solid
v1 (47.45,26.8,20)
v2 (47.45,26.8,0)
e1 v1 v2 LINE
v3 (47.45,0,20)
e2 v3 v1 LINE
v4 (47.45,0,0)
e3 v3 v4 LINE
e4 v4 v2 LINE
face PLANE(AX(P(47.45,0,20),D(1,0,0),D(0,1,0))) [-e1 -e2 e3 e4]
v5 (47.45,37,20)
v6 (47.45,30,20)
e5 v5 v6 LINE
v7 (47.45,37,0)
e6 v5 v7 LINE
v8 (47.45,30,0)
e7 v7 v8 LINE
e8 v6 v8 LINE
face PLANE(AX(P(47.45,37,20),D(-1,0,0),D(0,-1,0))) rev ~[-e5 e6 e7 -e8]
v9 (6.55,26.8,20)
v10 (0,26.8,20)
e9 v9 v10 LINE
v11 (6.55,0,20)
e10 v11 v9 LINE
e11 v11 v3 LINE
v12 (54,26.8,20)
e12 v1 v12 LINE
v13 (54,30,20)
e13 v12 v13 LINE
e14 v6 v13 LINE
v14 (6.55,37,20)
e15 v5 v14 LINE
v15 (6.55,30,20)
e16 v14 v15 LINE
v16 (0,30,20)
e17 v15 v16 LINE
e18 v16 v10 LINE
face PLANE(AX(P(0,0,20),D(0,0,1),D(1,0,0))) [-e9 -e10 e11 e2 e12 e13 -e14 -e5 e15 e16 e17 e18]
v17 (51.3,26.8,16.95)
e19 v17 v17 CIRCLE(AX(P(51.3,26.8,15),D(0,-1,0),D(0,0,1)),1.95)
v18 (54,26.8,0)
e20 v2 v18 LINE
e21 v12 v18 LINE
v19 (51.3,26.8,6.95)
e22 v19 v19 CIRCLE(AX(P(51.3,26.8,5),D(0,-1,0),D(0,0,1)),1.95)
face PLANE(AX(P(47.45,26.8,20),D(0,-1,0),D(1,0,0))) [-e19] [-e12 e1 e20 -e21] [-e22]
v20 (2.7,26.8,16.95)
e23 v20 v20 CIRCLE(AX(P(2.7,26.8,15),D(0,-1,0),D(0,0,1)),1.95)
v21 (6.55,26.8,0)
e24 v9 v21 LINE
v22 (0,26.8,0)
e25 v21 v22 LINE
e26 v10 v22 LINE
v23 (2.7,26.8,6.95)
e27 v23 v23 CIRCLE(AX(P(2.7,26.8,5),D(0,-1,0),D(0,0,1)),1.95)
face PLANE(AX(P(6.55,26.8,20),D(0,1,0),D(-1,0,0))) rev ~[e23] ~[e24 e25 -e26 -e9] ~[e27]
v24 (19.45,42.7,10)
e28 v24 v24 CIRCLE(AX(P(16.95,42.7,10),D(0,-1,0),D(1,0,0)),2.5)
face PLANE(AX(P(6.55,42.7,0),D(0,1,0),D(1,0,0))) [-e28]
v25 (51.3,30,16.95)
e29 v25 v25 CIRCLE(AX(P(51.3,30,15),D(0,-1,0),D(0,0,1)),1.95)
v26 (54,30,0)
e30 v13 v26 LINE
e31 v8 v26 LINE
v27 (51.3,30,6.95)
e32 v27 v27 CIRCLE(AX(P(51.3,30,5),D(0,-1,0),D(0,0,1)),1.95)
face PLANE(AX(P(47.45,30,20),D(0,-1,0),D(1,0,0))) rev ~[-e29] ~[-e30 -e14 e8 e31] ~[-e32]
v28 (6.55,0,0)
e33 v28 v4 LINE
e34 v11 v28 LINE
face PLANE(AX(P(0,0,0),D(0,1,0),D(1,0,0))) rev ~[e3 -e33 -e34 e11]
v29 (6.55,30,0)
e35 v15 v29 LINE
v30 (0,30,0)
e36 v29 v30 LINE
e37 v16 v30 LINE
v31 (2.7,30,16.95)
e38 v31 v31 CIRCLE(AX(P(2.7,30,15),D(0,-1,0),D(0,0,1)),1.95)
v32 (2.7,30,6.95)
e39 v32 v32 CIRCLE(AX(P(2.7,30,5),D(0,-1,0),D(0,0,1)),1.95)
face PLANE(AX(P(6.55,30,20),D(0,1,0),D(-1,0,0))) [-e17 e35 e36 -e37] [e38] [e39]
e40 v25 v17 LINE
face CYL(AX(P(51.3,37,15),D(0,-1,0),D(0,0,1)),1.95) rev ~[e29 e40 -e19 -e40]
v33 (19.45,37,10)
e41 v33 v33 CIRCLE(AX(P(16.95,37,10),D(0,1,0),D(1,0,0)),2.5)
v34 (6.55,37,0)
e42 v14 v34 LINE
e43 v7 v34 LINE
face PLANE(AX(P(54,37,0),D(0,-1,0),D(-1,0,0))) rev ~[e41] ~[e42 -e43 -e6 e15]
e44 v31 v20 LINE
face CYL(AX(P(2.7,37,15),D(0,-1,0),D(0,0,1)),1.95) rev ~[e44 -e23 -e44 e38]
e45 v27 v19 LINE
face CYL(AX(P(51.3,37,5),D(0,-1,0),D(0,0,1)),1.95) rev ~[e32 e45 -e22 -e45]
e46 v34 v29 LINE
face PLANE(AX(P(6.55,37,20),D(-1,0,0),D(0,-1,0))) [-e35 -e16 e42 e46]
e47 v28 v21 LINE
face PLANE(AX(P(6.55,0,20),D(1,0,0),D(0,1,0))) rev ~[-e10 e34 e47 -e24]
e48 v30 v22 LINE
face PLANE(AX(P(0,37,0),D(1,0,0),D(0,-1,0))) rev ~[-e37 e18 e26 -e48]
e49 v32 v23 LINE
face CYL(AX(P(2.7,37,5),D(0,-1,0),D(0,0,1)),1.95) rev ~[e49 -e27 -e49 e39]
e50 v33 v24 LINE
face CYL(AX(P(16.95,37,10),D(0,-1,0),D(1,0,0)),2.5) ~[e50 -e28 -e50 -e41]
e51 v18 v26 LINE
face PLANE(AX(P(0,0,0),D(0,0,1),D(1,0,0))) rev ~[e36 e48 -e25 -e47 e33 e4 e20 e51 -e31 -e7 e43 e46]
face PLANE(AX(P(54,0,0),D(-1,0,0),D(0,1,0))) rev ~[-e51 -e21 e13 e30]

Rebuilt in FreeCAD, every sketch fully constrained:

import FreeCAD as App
import Part
import Sketcher
Q = App.Units.Quantity

doc = App.newDocument("Part")
body = doc.addObject("PartDesign::Body", "Body")

sketch1 = body.newObject("Sketcher::SketchObject", "Sketch")
sketch1.AttachmentSupport = (doc.getObject("XY_Plane"), [""])
sketch1.MapMode = "FlatFace"
sketch1.addGeometry(Part.LineSegment(App.Vector(0, 37, 0), App.Vector(0, 0, 0)), False)
sketch1.addGeometry(Part.LineSegment(App.Vector(0, 0, 0), App.Vector(54, 0, 0)), False)
sketch1.addGeometry(Part.LineSegment(App.Vector(54, 0, 0), App.Vector(54, 37, 0)), False)
sketch1.addGeometry(Part.LineSegment(App.Vector(54, 37, 0), App.Vector(0, 37, 0)), False)
sketch1.addConstraint(Sketcher.Constraint("Coincident", 0, 2, 1, 1))
sketch1.addConstraint(Sketcher.Constraint("Coincident", 1, 2, 2, 1))
sketch1.addConstraint(Sketcher.Constraint("Coincident", 2, 2, 3, 1))
sketch1.addConstraint(Sketcher.Constraint("Coincident", 3, 2, 0, 1))
sketch1.addConstraint(Sketcher.Constraint("Vertical", 0))
sketch1.addConstraint(Sketcher.Constraint("Horizontal", 1))
sketch1.addConstraint(Sketcher.Constraint("Vertical", 2))
sketch1.addConstraint(Sketcher.Constraint("Horizontal", 3))
sketch1.addConstraint(Sketcher.Constraint("Coincident", 0, 2, -1, 1))
sketch1.addConstraint(Sketcher.Constraint("DistanceX", 1, 1, 1, 2, Q("54 mm")))
sketch1.addConstraint(Sketcher.Constraint("DistanceY", 0, 2, 0, 1, Q("37 mm")))
pad1 = body.newObject("PartDesign::Pad", "Pad")
pad1.Profile = sketch1
pad1.Length = 20

sketch2 = body.newObject("Sketcher::SketchObject", "Sketch001")
sketch2.AttachmentSupport = (doc.getObject("XZ_Plane"), [""])
sketch2.MapMode = "FlatFace"
sketch2.AttachmentOffset = App.Placement(App.Vector(0, 0, -37), App.Rotation())
sketch2.addGeometry(Part.Circle(App.Vector(2.7, 5, 0), App.Vector(0, 0, 1), 1.9), False)
sketch2.addGeometry(Part.Circle(App.Vector(2.7, 15, 0), App.Vector(0, 0, 1), 1.9), False)
sketch2.addGeometry(Part.Circle(App.Vector(51.3, 5, 0), App.Vector(0, 0, 1), 1.9), False)
sketch2.addGeometry(Part.Circle(App.Vector(51.3, 15, 0), App.Vector(0, 0, 1), 1.9), False)
sketch2.addConstraint(Sketcher.Constraint("Equal", 0, 1))
sketch2.addConstraint(Sketcher.Constraint("Equal", 1, 2))
sketch2.addConstraint(Sketcher.Constraint("Equal", 2, 3))
sketch2.addConstraint(Sketcher.Constraint("Horizontal", 0, 3, 2, 3))
sketch2.addConstraint(Sketcher.Constraint("Horizontal", 1, 3, 3, 3))
sketch2.addConstraint(Sketcher.Constraint("Vertical", 0, 3, 1, 3))
sketch2.addConstraint(Sketcher.Constraint("Vertical", 2, 3, 3, 3))
sketch2.addConstraint(Sketcher.Constraint("Diameter", 0, Q("3.9 mm")))
sketch2.addConstraint(Sketcher.Constraint("DistanceY", -1, 1, 0, 3, Q("5 mm")))
sketch2.addConstraint(Sketcher.Constraint("DistanceY", -1, 1, 1, 3, Q("15 mm")))
sketch2.addConstraint(Sketcher.Constraint("DistanceX", -1, 1, 0, 3, Q("2.7 mm")))
sketch2.addConstraint(Sketcher.Constraint("DistanceX", -1, 1, 2, 3, Q("51.3 mm")))
doc.recompute()
hole = body.newObject("PartDesign::Hole", "Hole")
hole.Profile = sketch2
hole.ThreadType = "None"
hole.Diameter = 3.9
hole.DepthType = "ThroughAll"
hole.Reversed = True

sketch3 = body.newObject("Sketcher::SketchObject", "Sketch002")
sketch3.AttachmentSupport = (doc.getObject("XY_Plane"), [""])
sketch3.MapMode = "FlatFace"
sketch3.AttachmentOffset = App.Placement(App.Vector(0, 0, 20), App.Rotation())
sketch3.addGeometry(Part.LineSegment(App.Vector(0, 27, 0), App.Vector(0, 0, 0)), False)
sketch3.addGeometry(Part.LineSegment(App.Vector(0, 0, 0), App.Vector(7, 0, 0)), False)
sketch3.addGeometry(Part.LineSegment(App.Vector(7, 0, 0), App.Vector(7, 27, 0)), False)
sketch3.addGeometry(Part.LineSegment(App.Vector(7, 27, 0), App.Vector(0, 27, 0)), False)
sketch3.addGeometry(Part.LineSegment(App.Vector(47, 0, 0), App.Vector(54, 0, 0)), False)
sketch3.addGeometry(Part.LineSegment(App.Vector(54, 0, 0), App.Vector(54, 27, 0)), False)
sketch3.addGeometry(Part.LineSegment(App.Vector(54, 27, 0), App.Vector(47, 27, 0)), False)
sketch3.addGeometry(Part.LineSegment(App.Vector(47, 27, 0), App.Vector(47, 0, 0)), False)
sketch3.addGeometry(Part.LineSegment(App.Vector(7, 30, 0), App.Vector(7, 37, 0)), False)
sketch3.addGeometry(Part.LineSegment(App.Vector(7, 37, 0), App.Vector(0, 37, 0)), False)
sketch3.addGeometry(Part.LineSegment(App.Vector(0, 37, 0), App.Vector(0, 30, 0)), False)
sketch3.addGeometry(Part.LineSegment(App.Vector(0, 30, 0), App.Vector(7, 30, 0)), False)
sketch3.addGeometry(Part.LineSegment(App.Vector(47, 30, 0), App.Vector(54, 30, 0)), False)
sketch3.addGeometry(Part.LineSegment(App.Vector(54, 30, 0), App.Vector(54, 37, 0)), False)
sketch3.addGeometry(Part.LineSegment(App.Vector(54, 37, 0), App.Vector(47, 37, 0)), False)
sketch3.addGeometry(Part.LineSegment(App.Vector(47, 37, 0), App.Vector(47, 30, 0)), False)
sketch3.addConstraint(Sketcher.Constraint("Coincident", 0, 2, 1, 1))
sketch3.addConstraint(Sketcher.Constraint("Coincident", 1, 2, 2, 1))
sketch3.addConstraint(Sketcher.Constraint("Coincident", 2, 2, 3, 1))
sketch3.addConstraint(Sketcher.Constraint("Coincident", 3, 2, 0, 1))
sketch3.addConstraint(Sketcher.Constraint("Coincident", 4, 2, 5, 1))
sketch3.addConstraint(Sketcher.Constraint("Coincident", 5, 2, 6, 1))
sketch3.addConstraint(Sketcher.Constraint("Coincident", 6, 2, 7, 1))
sketch3.addConstraint(Sketcher.Constraint("Coincident", 7, 2, 4, 1))
sketch3.addConstraint(Sketcher.Constraint("Coincident", 8, 2, 9, 1))
sketch3.addConstraint(Sketcher.Constraint("Coincident", 9, 2, 10, 1))
sketch3.addConstraint(Sketcher.Constraint("Coincident", 10, 2, 11, 1))
sketch3.addConstraint(Sketcher.Constraint("Coincident", 11, 2, 8, 1))
sketch3.addConstraint(Sketcher.Constraint("Coincident", 12, 2, 13, 1))
sketch3.addConstraint(Sketcher.Constraint("Coincident", 13, 2, 14, 1))
sketch3.addConstraint(Sketcher.Constraint("Coincident", 14, 2, 15, 1))
sketch3.addConstraint(Sketcher.Constraint("Coincident", 15, 2, 12, 1))
sketch3.addConstraint(Sketcher.Constraint("Vertical", 0))
sketch3.addConstraint(Sketcher.Constraint("Horizontal", 1))
sketch3.addConstraint(Sketcher.Constraint("Vertical", 2))
sketch3.addConstraint(Sketcher.Constraint("Horizontal", 3))
sketch3.addConstraint(Sketcher.Constraint("Horizontal", 4))
sketch3.addConstraint(Sketcher.Constraint("Vertical", 5))
sketch3.addConstraint(Sketcher.Constraint("Horizontal", 6))
sketch3.addConstraint(Sketcher.Constraint("Vertical", 7))
sketch3.addConstraint(Sketcher.Constraint("Vertical", 8))
sketch3.addConstraint(Sketcher.Constraint("Horizontal", 9))
sketch3.addConstraint(Sketcher.Constraint("Vertical", 10))
sketch3.addConstraint(Sketcher.Constraint("Horizontal", 11))
sketch3.addConstraint(Sketcher.Constraint("Horizontal", 12))
sketch3.addConstraint(Sketcher.Constraint("Vertical", 13))
sketch3.addConstraint(Sketcher.Constraint("Horizontal", 14))
sketch3.addConstraint(Sketcher.Constraint("Vertical", 15))
sketch3.addConstraint(Sketcher.Constraint("Coincident", 0, 2, -1, 1))
sketch3.addConstraint(Sketcher.Constraint("PointOnObject", 4, 2, -1))
sketch3.addConstraint(Sketcher.Constraint("PointOnObject", 9, 2, -2))
sketch3.addConstraint(Sketcher.Constraint("Horizontal", 3, 2, 5, 2))
sketch3.addConstraint(Sketcher.Constraint("Horizontal", 11, 2, 12, 2))
sketch3.addConstraint(Sketcher.Constraint("Horizontal", 9, 2, 13, 2))
sketch3.addConstraint(Sketcher.Constraint("Vertical", 2, 2, 8, 2))
sketch3.addConstraint(Sketcher.Constraint("Vertical", 5, 2, 12, 2))
sketch3.addConstraint(Sketcher.Constraint("Vertical", 7, 2, 14, 2))
sketch3.addConstraint(Sketcher.Constraint("Equal", 3, 4))
sketch3.addConstraint(Sketcher.Constraint("DistanceY", 8, 1, 8, 2, Q("7 mm")))
sketch3.addConstraint(Sketcher.Constraint("DistanceY", 0, 2, 0, 1, Q("26.8 mm")))
sketch3.addConstraint(Sketcher.Constraint("DistanceX", 1, 1, 1, 2, Q("6.55 mm")))
sketch3.addConstraint(Sketcher.Constraint("DistanceX", 2, 2, 6, 2, Q("40.9 mm")))
sketch3.addConstraint(Sketcher.Constraint("DistanceY", -1, 1, 8, 2, Q("37 mm")))
pocket1 = body.newObject("PartDesign::Pocket", "Pocket")
pocket1.Profile = sketch3
pocket1.Length = 20

sketch4 = body.newObject("Sketcher::SketchObject", "Sketch003")
sketch4.AttachmentSupport = (doc.getObject("XZ_Plane"), [""])
sketch4.MapMode = "FlatFace"
sketch4.AttachmentOffset = App.Placement(App.Vector(0, 0, -37), App.Rotation())
sketch4.addGeometry(Part.Circle(App.Vector(16.9, 10, 0), App.Vector(0, 0, 1), 2.5), False)
sketch4.addConstraint(Sketcher.Constraint("Diameter", 0, Q("5 mm")))
sketch4.addConstraint(Sketcher.Constraint("DistanceY", -1, 1, 0, 3, Q("10 mm")))
sketch4.addConstraint(Sketcher.Constraint("DistanceX", -1, 1, 0, 3, Q("16.95 mm")))
pad2 = body.newObject("PartDesign::Pad", "Pad001")
pad2.Profile = sketch4
pad2.Length = 5.7
pad2.Reversed = True

doc.recompute()
